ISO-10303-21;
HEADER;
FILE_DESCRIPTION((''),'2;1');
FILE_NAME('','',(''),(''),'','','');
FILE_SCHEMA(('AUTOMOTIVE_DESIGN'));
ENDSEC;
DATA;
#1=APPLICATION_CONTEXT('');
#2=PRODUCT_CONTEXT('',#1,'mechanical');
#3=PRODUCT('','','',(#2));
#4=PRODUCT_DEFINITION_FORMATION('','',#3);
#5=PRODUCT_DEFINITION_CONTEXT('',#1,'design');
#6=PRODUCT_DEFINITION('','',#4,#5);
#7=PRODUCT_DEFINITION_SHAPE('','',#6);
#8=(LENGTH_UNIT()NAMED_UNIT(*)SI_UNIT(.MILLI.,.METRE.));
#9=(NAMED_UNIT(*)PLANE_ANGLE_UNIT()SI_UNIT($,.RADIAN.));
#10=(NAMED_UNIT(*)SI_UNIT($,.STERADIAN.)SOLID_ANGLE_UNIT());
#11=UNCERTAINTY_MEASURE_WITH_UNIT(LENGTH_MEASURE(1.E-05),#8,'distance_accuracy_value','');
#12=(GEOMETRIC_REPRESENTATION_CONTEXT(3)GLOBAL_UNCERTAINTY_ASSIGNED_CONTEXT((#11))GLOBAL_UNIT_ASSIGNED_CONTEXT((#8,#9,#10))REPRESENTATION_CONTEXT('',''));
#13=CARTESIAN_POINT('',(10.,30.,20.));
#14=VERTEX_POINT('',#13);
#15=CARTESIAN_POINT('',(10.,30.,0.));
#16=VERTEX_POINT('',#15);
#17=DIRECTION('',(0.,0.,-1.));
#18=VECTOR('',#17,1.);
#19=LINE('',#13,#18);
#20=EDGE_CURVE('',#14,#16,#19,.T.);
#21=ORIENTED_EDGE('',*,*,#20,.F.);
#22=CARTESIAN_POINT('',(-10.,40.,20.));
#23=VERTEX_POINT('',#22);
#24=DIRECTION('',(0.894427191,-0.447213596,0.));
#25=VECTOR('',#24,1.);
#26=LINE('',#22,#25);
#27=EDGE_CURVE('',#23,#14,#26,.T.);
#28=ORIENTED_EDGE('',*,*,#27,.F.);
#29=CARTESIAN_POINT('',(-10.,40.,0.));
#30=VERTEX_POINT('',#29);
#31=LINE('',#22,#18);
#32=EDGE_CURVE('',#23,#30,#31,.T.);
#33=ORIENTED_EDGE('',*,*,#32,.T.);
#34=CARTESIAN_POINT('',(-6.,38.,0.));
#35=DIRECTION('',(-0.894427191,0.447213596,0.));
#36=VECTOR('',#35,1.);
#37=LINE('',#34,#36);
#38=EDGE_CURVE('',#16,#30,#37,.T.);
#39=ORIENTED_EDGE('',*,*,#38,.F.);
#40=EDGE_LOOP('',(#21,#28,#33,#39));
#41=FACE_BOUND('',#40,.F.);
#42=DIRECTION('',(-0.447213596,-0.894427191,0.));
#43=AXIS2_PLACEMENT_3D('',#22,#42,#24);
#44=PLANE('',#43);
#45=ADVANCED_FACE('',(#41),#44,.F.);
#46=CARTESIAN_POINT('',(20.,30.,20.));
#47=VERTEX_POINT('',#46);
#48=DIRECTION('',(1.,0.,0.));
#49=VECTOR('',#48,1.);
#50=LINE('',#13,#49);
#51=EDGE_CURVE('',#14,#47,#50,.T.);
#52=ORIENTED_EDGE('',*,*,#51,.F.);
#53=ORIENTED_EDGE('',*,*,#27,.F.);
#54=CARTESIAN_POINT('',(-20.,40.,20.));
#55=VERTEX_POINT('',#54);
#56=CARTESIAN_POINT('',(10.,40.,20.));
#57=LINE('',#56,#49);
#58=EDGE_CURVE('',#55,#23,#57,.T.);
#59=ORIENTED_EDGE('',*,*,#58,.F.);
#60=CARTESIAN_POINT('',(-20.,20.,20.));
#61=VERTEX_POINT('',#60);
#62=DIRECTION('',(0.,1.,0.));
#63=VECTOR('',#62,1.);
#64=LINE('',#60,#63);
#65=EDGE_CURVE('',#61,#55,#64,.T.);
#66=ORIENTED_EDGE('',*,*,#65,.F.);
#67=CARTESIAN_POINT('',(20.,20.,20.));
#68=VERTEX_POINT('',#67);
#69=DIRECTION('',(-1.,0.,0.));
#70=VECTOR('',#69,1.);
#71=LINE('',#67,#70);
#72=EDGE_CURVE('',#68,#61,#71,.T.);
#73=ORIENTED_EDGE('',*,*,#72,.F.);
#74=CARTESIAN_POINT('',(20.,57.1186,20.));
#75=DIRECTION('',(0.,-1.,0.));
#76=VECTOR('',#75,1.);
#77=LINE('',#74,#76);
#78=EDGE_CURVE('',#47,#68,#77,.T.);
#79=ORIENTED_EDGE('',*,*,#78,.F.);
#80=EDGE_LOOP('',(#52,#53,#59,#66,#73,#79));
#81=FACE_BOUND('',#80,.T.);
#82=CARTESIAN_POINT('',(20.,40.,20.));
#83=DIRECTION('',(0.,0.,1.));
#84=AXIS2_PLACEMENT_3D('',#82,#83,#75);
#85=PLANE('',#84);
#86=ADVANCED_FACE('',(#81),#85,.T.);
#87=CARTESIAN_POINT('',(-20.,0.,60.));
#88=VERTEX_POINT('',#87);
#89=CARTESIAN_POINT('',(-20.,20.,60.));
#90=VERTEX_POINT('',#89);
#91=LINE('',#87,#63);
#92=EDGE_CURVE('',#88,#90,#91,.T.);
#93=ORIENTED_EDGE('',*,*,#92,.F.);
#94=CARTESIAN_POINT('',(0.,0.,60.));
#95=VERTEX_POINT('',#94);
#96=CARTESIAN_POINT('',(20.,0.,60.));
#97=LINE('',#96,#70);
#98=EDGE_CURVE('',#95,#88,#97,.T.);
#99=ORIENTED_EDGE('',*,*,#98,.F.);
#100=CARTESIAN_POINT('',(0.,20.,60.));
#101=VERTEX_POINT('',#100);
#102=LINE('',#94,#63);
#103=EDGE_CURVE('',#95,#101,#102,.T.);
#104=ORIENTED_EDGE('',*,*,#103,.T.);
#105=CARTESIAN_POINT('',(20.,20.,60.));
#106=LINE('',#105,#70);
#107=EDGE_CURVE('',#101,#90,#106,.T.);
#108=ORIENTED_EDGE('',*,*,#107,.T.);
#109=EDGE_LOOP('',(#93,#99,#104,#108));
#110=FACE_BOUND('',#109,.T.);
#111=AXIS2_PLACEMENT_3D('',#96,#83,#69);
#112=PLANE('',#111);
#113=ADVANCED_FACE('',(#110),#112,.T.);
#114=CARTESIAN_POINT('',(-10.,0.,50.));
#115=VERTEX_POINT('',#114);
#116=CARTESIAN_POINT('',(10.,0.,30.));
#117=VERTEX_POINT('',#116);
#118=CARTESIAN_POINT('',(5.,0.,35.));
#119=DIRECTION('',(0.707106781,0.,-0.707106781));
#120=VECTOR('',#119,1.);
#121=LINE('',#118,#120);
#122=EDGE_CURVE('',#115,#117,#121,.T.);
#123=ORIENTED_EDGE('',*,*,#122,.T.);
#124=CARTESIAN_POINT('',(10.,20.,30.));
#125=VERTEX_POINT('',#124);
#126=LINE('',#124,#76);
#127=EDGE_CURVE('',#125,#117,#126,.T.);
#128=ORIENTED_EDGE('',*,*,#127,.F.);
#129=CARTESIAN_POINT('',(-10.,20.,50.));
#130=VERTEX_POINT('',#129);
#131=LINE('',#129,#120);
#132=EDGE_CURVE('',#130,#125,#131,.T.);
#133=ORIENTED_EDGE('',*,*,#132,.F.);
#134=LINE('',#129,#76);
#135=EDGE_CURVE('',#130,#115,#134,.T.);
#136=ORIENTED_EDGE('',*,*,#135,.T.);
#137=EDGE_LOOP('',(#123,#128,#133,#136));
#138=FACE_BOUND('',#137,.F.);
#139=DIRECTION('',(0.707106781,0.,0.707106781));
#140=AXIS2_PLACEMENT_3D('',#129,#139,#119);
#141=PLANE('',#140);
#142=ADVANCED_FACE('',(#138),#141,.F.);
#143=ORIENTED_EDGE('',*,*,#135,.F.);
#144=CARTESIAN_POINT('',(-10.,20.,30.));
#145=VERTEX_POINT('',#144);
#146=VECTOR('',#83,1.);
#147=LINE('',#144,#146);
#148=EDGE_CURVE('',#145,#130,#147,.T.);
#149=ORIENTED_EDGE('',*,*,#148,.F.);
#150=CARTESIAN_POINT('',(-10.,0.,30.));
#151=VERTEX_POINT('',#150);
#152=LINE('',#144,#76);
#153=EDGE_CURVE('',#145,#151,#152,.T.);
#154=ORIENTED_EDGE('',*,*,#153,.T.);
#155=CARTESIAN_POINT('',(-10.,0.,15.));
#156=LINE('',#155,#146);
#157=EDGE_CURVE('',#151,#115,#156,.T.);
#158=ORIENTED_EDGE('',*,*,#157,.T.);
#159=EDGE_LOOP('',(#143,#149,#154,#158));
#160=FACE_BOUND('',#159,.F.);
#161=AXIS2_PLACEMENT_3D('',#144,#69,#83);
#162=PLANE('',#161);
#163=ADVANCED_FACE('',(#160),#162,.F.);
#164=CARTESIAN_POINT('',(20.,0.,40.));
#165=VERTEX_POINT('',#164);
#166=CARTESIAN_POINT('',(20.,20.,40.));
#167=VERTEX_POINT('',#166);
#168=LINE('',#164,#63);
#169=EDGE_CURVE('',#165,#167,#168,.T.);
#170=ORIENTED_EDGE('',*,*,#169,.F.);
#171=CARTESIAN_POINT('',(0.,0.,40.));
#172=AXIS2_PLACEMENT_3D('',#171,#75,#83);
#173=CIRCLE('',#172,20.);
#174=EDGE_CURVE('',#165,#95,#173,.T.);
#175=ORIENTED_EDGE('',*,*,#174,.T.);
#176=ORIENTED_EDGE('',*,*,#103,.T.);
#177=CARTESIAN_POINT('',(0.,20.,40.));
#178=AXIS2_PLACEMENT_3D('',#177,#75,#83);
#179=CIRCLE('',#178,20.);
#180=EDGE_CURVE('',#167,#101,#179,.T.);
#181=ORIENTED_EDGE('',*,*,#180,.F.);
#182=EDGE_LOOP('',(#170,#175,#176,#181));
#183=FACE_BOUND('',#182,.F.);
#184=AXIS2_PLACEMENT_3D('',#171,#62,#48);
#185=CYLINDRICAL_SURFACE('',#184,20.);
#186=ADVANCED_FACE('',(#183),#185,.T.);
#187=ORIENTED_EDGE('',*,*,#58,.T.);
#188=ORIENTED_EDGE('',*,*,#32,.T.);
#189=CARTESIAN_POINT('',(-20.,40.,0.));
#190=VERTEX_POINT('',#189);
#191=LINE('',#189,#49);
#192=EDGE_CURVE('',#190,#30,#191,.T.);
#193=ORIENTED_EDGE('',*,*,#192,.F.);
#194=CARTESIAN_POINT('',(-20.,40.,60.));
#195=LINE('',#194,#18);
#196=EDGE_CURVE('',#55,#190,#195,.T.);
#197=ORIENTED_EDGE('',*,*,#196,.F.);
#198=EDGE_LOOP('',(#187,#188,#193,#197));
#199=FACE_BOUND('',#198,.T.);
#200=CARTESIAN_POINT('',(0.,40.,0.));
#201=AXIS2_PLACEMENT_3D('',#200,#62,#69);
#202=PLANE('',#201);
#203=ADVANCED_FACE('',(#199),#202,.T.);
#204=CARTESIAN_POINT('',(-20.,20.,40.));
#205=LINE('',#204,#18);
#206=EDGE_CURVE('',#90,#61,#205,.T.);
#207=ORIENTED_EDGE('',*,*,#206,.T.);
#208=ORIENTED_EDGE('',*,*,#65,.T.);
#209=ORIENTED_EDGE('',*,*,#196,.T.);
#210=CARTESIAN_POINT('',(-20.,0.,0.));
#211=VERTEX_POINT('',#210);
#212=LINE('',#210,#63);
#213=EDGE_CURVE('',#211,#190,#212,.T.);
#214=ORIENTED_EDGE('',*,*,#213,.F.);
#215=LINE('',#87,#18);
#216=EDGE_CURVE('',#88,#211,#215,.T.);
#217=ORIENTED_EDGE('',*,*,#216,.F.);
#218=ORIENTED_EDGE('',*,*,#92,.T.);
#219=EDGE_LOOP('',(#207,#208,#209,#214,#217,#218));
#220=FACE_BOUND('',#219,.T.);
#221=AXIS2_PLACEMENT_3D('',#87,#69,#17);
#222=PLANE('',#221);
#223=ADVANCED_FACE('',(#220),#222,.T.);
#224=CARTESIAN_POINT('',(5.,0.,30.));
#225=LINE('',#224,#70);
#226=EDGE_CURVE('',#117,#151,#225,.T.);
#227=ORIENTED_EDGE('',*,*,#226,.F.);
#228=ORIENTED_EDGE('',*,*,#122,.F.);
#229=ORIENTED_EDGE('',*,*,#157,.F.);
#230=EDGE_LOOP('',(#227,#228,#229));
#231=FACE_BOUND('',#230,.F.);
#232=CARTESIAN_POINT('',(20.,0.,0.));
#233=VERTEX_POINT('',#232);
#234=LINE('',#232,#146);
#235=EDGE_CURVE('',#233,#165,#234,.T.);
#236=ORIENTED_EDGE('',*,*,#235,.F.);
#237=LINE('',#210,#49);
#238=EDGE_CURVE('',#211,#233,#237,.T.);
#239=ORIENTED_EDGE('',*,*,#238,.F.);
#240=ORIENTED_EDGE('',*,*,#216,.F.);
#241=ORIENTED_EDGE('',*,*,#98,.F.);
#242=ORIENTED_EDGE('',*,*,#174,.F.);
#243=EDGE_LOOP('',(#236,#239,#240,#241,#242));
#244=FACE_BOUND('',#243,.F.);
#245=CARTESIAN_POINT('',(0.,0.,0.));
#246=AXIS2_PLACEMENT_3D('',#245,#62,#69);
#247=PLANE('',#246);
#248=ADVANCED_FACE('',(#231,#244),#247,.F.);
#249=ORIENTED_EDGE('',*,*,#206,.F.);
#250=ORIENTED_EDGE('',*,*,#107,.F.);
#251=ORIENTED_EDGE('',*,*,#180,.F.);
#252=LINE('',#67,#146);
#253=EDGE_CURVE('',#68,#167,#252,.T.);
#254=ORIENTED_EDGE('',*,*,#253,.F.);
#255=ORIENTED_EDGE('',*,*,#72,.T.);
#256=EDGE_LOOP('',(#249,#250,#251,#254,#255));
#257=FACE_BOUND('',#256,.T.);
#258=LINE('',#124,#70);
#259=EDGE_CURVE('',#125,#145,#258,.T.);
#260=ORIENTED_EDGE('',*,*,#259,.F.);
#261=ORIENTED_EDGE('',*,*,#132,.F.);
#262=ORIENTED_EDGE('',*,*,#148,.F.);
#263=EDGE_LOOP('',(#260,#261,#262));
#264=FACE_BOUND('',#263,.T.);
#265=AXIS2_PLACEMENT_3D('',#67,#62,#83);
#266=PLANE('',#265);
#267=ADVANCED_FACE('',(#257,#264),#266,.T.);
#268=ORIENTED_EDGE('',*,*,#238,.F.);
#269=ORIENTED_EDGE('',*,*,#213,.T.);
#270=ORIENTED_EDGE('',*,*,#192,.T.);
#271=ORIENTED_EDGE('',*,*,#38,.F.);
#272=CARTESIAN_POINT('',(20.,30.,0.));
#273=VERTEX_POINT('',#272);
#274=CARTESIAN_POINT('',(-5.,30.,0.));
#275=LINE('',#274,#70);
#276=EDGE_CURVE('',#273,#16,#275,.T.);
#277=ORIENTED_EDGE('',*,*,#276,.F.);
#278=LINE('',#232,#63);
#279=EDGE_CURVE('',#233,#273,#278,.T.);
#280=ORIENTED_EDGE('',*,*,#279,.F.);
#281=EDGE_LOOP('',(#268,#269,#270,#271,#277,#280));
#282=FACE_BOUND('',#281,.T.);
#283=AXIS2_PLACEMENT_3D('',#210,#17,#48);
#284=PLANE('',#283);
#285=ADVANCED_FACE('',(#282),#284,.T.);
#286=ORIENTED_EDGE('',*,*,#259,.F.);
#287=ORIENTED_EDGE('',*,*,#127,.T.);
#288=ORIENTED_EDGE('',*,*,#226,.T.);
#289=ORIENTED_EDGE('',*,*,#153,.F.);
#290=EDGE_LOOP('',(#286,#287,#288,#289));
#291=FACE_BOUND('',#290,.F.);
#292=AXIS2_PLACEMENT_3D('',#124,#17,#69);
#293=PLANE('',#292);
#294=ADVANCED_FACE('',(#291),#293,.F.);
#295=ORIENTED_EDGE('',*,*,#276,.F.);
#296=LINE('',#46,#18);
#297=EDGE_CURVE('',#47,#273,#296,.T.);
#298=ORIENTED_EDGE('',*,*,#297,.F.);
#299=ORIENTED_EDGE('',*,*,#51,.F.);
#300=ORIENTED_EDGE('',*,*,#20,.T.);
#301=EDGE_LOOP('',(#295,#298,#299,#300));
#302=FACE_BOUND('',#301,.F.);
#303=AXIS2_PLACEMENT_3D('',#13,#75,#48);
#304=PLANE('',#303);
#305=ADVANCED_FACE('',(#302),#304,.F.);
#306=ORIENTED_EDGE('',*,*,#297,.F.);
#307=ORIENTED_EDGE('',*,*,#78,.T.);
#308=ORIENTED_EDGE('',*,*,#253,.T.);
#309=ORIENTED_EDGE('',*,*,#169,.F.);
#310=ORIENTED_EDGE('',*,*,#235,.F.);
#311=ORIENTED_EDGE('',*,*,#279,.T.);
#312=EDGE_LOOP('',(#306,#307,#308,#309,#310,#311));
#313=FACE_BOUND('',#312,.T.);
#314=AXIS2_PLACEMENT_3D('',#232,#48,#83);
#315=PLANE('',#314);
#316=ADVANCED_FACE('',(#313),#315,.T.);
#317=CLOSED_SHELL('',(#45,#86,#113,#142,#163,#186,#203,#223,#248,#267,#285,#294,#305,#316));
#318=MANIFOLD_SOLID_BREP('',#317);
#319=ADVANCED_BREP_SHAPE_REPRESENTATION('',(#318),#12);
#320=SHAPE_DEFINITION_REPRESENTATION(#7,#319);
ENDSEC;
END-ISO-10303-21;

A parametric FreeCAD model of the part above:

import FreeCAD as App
import Part
import Sketcher

V = App.Vector


def edges_at(feature, points):
    """Names of the edges that pass closest to the given points."""
    edges = feature.Shape.Edges
    near = lambda p: min(range(len(edges)), key=lambda i: edges[i].distToShape(Part.Vertex(*p))[0])
    return sorted({f"Edge{near(p) + 1}" for p in points})


def add_polygon(sketch, points):
    """Adds a closed chain of lines whose ends are joined by coincident constraints."""
    first, n = sketch.GeometryCount, len(points)
    for a, b in zip(points, points[1:] + points[:1]):
        sketch.addGeometry(Part.LineSegment(App.Vector(*a, 0), App.Vector(*b, 0)), False)
    for i in range(n):
        sketch.addConstraint(Sketcher.Constraint("Coincident", first + i, 2, first + (i + 1) % n, 1))

doc = App.newDocument("Part")
body = doc.addObject("PartDesign::Body", "Body")

# Sketch on XZ plane
sketch1 = body.newObject("Sketcher::SketchObject", "Sketch")
sketch1.AttachmentSupport = (doc.getObject("XZ_Plane"), [""])
sketch1.MapMode = "FlatFace"
add_polygon(sketch1, [(20, 0), (-20, 0), (-20, 60), (20, 60)])  # lines 0-3
sketch1.addConstraint(Sketcher.Constraint("Horizontal", 0))
sketch1.addConstraint(Sketcher.Constraint("Vertical", 1))
sketch1.addConstraint(Sketcher.Constraint("Horizontal", 2))
sketch1.addConstraint(Sketcher.Constraint("Vertical", 3))
sketch1.addConstraint(Sketcher.Constraint("Symmetric", 0, 2, 3, 2, -1, 1))
sketch1.addConstraint(Sketcher.Constraint("DistanceX", 0, 2, 0, 1, 40.0))
sketch1.addConstraint(Sketcher.Constraint("DistanceY", 1, 1, 1, 2, 60.0))
pad1 = body.newObject("PartDesign::Pad", "Pad")
pad1.Profile = sketch1
pad1.Length = 40
pad1.Reversed = True

# Sketch on YZ plane
sketch2 = body.newObject("Sketcher::SketchObject", "Sketch001")
sketch2.AttachmentSupport = (doc.getObject("YZ_Plane"), [""])
sketch2.MapMode = "FlatFace"
sketch2.AttachmentOffset = App.Placement(V(0, 0, 20), App.Rotation())
add_polygon(sketch2, [(20, 20), (57, 20), (57, 84), (20, 84)])  # lines 0-3
sketch2.addConstraint(Sketcher.Constraint("Horizontal", 0))
sketch2.addConstraint(Sketcher.Constraint("Vertical", 1))
sketch2.addConstraint(Sketcher.Constraint("Horizontal", 2))
sketch2.addConstraint(Sketcher.Constraint("Vertical", 3))
sketch2.addConstraint(Sketcher.Constraint("DistanceY", -1, 1, 0, 2, 20.0))
sketch2.addConstraint(Sketcher.Constraint("DistanceX", -1, 1, 2, 2, 20.0))
sketch2.addConstraint(Sketcher.Constraint("DistanceY", 1, 1, 1, 2, 64.171))
sketch2.addConstraint(Sketcher.Constraint("DistanceX", 0, 1, 0, 2, 37.1186))
pocket1 = body.newObject("PartDesign::Pocket", "Pocket")
pocket1.Profile = sketch2
pocket1.Type = "ThroughAll"

# Sketch on XY plane
sketch3 = body.newObject("Sketcher::SketchObject", "Sketch002")
sketch3.AttachmentSupport = (doc.getObject("XY_Plane"), [""])
sketch3.MapMode = "FlatFace"
sketch3.AttachmentOffset = App.Placement(V(0, 0, 20), App.Rotation())
add_polygon(sketch3, [(20, 40), (-10, 40), (10, 30), (20, 30)])  # lines 0-3
sketch3.addConstraint(Sketcher.Constraint("Horizontal", 0))
sketch3.addConstraint(Sketcher.Constraint("Horizontal", 2))
sketch3.addConstraint(Sketcher.Constraint("Vertical", 3))
sketch3.addConstraint(Sketcher.Constraint("Equal", 2, 3))
sketch3.addConstraint(Sketcher.Constraint("DistanceX", 2, 1, 2, 2, 10.0))
sketch3.addConstraint(Sketcher.Constraint("DistanceX", 0, 2, -1, 1, 10.0))
sketch3.addConstraint(Sketcher.Constraint("DistanceX", -1, 1, 1, 2, 10.0))
sketch3.addConstraint(Sketcher.Constraint("DistanceY", -1, 1, 0, 2, 40.0))
pocket2 = body.newObject("PartDesign::Pocket", "Pocket001")
pocket2.Profile = sketch3
pocket2.Type = "ThroughAll"

# Sketch on XZ plane
sketch4 = body.newObject("Sketcher::SketchObject", "Sketch003")
sketch4.AttachmentSupport = (doc.getObject("XZ_Plane"), [""])
sketch4.MapMode = "FlatFace"
sketch4.AttachmentOffset = App.Placement(V(0, 0, -20), App.Rotation())
add_polygon(sketch4, [(10, 30), (-10, 30), (-10, 50)])  # lines 0-2
sketch4.addConstraint(Sketcher.Constraint("Horizontal", 0))
sketch4.addConstraint(Sketcher.Constraint("Vertical", 1))
sketch4.addConstraint(Sketcher.Constraint("Equal", 0, 1))
sketch4.addConstraint(Sketcher.Constraint("DistanceX", 0, 2, 0, 1, 20.0))
sketch4.addConstraint(Sketcher.Constraint("DistanceX", 0, 2, -1, 1, 10.0))
sketch4.addConstraint(Sketcher.Constraint("DistanceY", -1, 1, 0, 2, 30.0))
pocket3 = body.newObject("PartDesign::Pocket", "Pocket002")
pocket3.Profile = sketch4
pocket3.Type = "ThroughAll"
pocket3.Reversed = True
doc.recompute()

fillet = body.newObject("PartDesign::Fillet", "Fillet")
fillet.Base = (pocket3, edges_at(pocket3, [(20, 10, 60)]))
fillet.Radius = 20

doc.recompute()
